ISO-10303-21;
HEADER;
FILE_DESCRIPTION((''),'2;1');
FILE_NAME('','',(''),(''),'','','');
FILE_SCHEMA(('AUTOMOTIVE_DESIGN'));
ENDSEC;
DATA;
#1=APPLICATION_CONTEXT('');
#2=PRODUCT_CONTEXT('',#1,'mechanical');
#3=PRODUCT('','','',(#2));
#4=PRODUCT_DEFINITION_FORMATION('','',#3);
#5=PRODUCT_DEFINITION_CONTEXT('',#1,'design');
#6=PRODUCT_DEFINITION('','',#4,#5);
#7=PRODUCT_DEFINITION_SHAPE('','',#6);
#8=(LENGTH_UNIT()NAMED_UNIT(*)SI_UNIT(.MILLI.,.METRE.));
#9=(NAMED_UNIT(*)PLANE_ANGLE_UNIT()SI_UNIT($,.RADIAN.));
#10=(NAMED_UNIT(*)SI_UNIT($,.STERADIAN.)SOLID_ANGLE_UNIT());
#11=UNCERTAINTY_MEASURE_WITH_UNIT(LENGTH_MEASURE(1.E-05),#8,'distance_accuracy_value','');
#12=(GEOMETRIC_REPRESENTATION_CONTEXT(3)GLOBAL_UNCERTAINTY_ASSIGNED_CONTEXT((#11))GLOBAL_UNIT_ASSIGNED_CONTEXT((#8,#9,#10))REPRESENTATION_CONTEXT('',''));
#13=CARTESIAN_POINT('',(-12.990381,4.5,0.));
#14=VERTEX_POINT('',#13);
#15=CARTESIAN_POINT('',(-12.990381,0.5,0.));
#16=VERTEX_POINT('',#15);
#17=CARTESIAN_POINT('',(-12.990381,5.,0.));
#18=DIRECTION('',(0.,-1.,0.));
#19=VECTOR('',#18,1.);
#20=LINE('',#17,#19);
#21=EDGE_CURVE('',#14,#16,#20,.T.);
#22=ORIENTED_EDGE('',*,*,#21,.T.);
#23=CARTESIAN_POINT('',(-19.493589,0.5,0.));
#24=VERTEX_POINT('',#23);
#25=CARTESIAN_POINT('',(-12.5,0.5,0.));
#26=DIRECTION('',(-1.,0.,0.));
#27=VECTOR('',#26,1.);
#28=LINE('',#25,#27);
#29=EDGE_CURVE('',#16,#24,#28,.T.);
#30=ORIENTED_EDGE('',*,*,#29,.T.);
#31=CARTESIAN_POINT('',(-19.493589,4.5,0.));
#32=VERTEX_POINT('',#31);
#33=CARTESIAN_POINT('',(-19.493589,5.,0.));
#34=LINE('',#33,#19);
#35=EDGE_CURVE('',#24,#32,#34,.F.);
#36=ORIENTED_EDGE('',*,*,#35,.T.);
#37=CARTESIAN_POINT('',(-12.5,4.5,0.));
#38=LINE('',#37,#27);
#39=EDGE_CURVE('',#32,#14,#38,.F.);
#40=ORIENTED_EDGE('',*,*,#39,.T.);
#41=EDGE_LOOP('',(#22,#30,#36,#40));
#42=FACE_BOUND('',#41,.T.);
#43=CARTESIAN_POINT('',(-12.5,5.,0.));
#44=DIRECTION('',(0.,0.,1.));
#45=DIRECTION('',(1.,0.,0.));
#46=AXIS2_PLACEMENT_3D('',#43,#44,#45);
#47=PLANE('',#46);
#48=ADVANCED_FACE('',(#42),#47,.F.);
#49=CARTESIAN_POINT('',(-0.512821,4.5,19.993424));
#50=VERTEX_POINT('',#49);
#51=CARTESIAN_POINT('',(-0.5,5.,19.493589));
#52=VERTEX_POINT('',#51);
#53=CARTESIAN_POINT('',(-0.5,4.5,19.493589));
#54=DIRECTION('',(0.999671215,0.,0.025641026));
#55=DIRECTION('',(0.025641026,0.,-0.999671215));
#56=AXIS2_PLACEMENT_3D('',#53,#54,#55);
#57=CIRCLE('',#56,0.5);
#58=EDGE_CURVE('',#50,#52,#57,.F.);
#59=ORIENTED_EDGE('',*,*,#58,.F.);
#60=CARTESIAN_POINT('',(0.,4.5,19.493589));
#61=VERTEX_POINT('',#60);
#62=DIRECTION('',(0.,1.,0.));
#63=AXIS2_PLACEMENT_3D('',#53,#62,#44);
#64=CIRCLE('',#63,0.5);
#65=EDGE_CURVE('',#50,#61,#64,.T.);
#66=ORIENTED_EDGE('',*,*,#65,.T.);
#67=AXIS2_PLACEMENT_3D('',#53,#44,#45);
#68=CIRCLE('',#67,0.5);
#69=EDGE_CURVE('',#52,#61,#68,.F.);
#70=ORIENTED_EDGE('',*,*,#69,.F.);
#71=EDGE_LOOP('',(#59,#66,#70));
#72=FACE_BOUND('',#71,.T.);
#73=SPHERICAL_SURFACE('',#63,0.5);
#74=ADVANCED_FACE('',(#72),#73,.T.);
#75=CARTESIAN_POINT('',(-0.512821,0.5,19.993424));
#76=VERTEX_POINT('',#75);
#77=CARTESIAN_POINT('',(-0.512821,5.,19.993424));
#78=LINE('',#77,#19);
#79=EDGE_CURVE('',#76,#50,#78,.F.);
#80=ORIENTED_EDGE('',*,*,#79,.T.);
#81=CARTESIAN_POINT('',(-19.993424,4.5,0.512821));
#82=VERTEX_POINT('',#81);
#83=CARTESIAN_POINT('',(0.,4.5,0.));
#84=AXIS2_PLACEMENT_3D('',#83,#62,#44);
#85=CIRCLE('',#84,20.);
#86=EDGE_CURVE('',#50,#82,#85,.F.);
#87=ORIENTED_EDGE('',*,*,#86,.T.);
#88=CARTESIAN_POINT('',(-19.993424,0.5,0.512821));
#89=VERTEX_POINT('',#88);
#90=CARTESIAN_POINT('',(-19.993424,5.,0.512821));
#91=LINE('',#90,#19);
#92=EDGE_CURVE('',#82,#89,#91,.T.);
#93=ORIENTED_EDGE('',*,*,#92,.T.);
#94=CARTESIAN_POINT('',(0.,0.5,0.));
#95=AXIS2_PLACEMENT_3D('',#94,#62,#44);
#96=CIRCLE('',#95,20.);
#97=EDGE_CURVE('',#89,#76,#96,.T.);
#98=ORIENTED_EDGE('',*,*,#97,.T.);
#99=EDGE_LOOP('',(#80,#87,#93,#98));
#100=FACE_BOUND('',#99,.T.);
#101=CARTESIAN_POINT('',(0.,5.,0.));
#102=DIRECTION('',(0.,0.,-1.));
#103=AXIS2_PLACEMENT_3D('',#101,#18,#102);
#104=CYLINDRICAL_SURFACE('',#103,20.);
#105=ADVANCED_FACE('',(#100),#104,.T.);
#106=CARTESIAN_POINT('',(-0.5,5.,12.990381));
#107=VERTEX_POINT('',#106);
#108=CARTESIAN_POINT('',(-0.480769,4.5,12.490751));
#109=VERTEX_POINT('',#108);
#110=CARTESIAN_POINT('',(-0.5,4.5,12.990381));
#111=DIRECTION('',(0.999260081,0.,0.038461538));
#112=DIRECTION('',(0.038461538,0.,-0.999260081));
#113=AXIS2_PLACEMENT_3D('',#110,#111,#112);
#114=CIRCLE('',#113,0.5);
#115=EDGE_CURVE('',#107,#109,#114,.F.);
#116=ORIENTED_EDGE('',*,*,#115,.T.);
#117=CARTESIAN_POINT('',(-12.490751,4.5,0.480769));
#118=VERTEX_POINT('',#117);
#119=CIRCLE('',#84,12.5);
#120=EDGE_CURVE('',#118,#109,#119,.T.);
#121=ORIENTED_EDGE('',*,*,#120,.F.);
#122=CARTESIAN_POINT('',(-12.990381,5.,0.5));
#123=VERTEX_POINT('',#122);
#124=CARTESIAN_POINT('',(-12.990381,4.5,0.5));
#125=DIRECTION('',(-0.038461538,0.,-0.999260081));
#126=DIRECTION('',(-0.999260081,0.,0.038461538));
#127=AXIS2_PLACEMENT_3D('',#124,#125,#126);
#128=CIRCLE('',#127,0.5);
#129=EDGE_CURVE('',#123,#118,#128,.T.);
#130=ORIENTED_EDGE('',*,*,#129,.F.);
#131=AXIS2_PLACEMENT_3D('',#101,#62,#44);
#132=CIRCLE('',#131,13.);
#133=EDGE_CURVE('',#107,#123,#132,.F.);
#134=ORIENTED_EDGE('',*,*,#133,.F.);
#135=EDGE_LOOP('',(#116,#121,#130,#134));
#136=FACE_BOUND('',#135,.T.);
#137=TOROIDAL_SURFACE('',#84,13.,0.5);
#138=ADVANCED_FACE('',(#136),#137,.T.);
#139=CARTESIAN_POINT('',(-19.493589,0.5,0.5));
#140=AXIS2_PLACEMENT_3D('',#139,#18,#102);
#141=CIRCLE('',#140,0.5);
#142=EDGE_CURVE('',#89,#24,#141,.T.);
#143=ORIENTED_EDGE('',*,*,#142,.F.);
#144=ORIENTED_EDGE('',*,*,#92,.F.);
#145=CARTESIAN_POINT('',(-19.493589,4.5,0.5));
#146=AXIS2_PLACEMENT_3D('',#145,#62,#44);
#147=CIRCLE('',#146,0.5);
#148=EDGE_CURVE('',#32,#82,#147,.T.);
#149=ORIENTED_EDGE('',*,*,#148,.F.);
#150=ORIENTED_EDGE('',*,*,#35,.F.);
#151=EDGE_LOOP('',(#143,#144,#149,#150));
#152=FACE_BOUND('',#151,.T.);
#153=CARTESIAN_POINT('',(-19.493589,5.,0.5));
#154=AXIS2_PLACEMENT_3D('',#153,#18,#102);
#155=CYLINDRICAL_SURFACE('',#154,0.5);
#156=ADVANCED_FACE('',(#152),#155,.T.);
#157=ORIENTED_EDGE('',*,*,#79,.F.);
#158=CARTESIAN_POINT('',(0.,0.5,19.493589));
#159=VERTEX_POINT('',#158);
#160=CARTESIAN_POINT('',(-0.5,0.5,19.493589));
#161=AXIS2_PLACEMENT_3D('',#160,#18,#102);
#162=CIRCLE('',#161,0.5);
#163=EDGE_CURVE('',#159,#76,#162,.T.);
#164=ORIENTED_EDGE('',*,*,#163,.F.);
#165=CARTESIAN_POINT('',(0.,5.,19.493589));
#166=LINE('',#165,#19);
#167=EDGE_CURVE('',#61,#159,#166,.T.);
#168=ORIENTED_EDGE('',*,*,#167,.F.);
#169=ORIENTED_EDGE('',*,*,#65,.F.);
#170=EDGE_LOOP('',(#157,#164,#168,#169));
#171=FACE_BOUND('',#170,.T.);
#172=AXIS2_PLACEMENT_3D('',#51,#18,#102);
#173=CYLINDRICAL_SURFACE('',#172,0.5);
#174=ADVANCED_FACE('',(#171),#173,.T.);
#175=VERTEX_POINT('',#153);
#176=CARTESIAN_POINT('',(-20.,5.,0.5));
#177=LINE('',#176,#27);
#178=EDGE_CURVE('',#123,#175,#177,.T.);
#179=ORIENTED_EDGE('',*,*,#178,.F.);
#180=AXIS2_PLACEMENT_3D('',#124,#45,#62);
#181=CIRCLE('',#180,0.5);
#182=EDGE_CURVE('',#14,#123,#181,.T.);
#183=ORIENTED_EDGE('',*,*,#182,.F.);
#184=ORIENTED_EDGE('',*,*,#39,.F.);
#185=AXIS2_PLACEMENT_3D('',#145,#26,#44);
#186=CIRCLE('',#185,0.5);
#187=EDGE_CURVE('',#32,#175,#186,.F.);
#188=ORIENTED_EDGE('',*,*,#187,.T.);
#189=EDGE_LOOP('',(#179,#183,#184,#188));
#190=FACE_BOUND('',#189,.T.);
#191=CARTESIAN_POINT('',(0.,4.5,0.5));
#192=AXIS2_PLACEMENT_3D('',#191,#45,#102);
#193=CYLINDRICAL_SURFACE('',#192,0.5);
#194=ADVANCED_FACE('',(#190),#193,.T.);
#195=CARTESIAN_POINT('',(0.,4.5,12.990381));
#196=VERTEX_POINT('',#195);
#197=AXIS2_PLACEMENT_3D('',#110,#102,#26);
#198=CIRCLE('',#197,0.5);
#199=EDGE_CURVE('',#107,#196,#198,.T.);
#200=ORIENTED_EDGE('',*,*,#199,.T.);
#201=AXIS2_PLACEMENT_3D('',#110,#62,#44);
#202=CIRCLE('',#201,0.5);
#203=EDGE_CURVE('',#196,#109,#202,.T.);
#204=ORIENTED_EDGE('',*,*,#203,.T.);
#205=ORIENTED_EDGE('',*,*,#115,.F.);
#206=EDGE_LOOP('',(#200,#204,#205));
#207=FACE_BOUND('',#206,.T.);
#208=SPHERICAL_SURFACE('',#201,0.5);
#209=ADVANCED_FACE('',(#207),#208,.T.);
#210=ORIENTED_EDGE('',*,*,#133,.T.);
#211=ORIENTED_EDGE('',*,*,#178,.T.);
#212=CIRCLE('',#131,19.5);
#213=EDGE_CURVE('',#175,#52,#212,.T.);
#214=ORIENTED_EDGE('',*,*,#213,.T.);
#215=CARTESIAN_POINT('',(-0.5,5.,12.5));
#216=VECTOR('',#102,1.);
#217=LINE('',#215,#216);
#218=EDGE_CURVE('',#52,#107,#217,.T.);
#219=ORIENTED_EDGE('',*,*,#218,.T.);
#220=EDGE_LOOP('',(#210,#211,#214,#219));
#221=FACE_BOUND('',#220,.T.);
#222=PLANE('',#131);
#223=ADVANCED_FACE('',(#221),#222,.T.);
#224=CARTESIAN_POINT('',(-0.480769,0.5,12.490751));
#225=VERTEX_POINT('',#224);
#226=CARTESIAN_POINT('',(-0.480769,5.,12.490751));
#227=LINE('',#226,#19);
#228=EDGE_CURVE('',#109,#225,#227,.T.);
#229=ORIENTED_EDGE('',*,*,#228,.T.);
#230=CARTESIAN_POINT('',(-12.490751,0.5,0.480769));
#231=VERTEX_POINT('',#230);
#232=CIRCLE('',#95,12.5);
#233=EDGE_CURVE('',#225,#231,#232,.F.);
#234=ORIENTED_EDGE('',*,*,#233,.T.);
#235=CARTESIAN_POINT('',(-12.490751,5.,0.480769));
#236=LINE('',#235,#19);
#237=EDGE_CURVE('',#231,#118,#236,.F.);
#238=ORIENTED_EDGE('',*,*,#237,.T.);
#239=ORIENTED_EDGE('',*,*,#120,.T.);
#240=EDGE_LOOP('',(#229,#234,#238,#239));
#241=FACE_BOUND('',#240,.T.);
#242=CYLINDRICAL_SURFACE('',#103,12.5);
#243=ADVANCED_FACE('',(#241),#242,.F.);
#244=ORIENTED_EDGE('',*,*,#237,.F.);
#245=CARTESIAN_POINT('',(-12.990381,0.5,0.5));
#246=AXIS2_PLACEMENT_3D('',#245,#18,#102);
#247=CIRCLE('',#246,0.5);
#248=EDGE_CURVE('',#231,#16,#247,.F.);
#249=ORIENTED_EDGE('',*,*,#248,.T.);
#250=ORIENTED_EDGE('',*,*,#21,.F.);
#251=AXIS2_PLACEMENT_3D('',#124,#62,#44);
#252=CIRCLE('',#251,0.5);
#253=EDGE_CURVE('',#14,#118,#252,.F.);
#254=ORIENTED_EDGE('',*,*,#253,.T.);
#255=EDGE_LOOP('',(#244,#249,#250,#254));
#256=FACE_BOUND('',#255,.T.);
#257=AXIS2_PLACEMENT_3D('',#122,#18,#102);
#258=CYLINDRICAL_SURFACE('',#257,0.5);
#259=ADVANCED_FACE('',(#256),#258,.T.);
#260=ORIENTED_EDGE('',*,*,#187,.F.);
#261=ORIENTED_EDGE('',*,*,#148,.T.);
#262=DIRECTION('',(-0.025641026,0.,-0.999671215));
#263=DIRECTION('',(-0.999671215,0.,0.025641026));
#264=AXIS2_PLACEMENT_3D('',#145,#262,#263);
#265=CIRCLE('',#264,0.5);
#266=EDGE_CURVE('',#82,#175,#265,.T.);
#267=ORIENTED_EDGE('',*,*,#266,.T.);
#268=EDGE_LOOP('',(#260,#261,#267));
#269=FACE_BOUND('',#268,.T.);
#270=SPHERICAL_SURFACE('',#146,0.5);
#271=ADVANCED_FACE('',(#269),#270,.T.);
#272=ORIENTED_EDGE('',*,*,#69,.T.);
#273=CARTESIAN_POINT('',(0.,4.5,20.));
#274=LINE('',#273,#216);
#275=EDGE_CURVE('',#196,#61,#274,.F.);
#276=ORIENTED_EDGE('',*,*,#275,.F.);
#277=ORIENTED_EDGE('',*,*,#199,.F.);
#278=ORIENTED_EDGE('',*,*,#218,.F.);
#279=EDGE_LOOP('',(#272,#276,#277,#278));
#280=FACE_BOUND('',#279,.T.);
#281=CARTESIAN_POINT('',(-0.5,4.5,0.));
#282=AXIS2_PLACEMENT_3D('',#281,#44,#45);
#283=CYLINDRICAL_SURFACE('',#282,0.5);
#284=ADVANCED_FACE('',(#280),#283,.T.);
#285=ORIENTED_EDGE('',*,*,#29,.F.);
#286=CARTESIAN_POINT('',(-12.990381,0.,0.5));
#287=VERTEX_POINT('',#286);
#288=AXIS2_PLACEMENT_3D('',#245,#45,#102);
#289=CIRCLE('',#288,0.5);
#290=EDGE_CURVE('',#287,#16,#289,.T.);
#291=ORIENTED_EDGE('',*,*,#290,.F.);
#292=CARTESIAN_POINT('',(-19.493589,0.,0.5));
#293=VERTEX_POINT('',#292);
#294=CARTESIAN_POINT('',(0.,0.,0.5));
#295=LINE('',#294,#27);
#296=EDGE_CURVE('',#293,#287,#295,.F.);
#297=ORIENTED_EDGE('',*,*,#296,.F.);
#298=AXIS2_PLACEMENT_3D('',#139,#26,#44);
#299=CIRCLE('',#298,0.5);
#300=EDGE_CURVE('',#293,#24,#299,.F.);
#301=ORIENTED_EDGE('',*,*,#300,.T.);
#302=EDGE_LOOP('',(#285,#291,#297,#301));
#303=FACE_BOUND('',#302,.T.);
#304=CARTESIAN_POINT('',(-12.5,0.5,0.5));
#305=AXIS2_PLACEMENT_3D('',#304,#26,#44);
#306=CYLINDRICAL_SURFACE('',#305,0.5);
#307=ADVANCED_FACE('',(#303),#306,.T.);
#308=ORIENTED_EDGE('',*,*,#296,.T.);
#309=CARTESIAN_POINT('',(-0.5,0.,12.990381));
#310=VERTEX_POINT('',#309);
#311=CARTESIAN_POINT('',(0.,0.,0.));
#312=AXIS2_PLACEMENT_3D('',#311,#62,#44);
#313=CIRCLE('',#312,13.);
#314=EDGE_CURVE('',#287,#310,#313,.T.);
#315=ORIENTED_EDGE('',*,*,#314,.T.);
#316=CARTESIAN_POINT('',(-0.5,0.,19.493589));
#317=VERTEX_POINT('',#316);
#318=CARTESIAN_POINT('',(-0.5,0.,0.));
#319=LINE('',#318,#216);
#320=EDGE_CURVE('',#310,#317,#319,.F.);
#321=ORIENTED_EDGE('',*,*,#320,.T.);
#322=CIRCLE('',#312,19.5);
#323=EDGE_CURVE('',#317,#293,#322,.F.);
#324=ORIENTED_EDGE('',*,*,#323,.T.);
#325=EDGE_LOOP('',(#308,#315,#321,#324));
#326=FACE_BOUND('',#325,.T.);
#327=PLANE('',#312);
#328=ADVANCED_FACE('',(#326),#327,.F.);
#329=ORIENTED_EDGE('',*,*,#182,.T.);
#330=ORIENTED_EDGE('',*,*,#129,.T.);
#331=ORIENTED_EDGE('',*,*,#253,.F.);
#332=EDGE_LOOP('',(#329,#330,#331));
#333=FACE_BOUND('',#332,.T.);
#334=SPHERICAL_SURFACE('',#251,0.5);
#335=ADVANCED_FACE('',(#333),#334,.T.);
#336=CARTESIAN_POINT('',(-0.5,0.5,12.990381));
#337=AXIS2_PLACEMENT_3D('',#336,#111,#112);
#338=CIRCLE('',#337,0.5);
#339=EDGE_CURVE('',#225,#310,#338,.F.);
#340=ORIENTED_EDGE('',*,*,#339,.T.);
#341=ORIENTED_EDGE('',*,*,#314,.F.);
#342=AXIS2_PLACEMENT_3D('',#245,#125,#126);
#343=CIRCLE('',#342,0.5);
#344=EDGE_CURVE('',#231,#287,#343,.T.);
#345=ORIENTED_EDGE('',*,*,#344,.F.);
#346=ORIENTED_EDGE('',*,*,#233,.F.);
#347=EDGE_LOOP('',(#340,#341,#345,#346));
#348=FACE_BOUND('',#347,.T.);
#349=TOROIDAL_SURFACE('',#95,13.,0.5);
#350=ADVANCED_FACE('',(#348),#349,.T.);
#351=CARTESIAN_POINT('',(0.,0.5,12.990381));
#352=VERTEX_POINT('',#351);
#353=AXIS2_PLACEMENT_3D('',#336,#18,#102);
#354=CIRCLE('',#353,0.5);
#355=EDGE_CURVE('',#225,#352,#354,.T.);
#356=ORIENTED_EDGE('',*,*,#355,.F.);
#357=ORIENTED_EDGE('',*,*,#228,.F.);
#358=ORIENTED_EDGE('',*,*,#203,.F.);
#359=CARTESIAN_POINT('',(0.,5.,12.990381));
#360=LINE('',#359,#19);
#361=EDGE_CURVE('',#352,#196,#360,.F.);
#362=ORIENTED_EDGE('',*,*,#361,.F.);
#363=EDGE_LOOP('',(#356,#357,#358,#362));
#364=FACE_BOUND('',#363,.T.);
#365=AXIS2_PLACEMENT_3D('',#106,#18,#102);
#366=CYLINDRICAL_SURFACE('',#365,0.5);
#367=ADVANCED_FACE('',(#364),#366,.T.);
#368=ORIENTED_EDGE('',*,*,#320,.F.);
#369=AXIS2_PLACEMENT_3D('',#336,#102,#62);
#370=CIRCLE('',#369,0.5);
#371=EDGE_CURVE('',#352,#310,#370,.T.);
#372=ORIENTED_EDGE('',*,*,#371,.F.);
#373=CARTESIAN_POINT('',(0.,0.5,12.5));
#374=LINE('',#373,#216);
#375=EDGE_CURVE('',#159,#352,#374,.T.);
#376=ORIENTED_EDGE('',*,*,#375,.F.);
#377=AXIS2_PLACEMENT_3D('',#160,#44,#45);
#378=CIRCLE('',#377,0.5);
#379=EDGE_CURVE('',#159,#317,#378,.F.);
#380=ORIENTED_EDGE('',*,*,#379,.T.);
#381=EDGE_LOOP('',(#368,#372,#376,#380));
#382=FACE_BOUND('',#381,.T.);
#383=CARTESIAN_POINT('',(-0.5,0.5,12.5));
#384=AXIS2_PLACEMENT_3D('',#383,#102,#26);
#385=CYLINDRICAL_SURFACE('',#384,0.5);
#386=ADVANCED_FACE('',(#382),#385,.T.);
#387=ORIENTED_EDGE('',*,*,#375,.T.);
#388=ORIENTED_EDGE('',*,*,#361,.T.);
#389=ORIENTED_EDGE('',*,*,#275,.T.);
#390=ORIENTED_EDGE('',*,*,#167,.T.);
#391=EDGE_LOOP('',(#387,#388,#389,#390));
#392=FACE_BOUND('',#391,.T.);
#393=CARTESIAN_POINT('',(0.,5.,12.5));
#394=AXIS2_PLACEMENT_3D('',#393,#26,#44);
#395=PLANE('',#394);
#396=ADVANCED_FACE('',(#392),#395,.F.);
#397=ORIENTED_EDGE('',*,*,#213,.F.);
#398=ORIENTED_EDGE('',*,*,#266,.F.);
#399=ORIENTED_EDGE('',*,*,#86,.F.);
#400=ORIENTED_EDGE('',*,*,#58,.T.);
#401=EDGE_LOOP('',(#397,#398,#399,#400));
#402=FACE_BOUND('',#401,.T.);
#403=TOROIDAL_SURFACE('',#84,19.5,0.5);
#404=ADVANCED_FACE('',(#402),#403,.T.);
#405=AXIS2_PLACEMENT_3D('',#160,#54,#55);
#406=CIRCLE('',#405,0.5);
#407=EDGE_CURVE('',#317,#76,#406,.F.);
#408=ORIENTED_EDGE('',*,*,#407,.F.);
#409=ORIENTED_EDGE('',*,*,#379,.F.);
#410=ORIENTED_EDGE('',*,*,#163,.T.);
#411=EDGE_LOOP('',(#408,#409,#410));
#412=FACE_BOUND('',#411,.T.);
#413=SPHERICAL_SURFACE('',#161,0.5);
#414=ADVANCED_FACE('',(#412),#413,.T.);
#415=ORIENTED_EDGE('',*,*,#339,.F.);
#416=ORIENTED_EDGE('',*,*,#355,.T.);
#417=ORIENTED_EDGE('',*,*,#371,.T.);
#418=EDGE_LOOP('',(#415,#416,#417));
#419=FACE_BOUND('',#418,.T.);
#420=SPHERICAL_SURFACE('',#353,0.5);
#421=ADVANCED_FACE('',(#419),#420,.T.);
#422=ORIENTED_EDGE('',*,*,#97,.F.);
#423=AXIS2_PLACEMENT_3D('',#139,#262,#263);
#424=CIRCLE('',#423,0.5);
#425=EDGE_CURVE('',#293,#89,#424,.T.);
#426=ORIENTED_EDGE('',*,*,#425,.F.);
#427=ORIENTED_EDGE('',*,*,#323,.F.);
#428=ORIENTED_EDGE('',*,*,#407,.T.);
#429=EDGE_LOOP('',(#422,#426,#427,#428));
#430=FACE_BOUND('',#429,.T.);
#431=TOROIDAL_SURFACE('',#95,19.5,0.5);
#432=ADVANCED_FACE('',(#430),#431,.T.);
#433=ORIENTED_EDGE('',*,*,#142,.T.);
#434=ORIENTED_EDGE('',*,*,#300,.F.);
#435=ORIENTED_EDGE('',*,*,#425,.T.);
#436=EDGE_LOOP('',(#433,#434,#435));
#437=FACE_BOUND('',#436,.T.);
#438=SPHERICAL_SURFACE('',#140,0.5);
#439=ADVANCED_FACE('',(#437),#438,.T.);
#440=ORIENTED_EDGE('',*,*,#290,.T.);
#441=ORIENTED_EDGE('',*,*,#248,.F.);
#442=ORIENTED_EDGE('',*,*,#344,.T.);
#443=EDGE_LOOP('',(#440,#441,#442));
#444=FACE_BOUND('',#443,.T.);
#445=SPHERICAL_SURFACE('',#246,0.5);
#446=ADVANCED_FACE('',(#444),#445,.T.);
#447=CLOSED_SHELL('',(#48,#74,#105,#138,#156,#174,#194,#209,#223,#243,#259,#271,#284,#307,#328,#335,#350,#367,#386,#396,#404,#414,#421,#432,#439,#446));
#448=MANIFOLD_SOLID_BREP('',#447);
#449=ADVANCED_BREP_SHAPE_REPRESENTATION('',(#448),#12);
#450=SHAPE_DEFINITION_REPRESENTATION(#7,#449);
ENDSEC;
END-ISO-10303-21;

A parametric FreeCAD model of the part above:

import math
import FreeCAD as App
import Part
import Sketcher
from FreeCAD import Vector
Q = App.Units.Quantity

doc = App.newDocument("Part")
body = doc.addObject("PartDesign::Body", "Body")

# Sketch on XZ plane
sketch1 = body.newObject("Sketcher::SketchObject", "Sketch")
sketch1.AttachmentSupport = (doc.getObject("XZ_Plane"), [""])
sketch1.MapMode = "FlatFace"
sketch1.addGeometry([
    Part.LineSegment(Vector(-12, 0, 0), Vector(-20, 0, 0)),
    Part.ArcOfCircle(Part.Circle(Vector(0, 0, 0), Vector(0, 0, 1), 20), math.radians(90), math.radians(180)),
    Part.LineSegment(Vector(0, 20, 0), Vector(0, 12, 0)),
    Part.ArcOfCircle(Part.Circle(Vector(0, 0, 0), Vector(0, 0, 1), 12), math.radians(90), math.radians(180)),
], False)
sketch1.addConstraint([
    Sketcher.Constraint("Coincident", 0, 2, 1, 2),
    Sketcher.Constraint("Coincident", 1, 1, 2, 1),
    Sketcher.Constraint("Coincident", 2, 2, 3, 1),
    Sketcher.Constraint("Coincident", 3, 2, 0, 1),
    Sketcher.Constraint("Horizontal", 0),
    Sketcher.Constraint("Vertical", 2),
    Sketcher.Constraint("Coincident", 1, 3, -1, 1),
    Sketcher.Constraint("Coincident", 3, 3, -1, 1),
    Sketcher.Constraint("PointOnObject", 0, 2, -1),
    Sketcher.Constraint("PointOnObject", 1, 1, -2),
    Sketcher.Constraint("Radius", 1, Q("20 mm")),
    Sketcher.Constraint("Radius", 3, Q("12.5 mm")),
])
pad1 = body.newObject("PartDesign::Pad", "Pad")
pad1.Profile = sketch1
pad1.Length = 5
pad1.Reversed = True
doc.recompute()

fillet = body.newObject("PartDesign::Fillet", "Fillet")
fillet.Base = (pad1, ["Edge1"])
fillet.UseAllEdges = True
fillet.Radius = 0.5

doc.recompute()
